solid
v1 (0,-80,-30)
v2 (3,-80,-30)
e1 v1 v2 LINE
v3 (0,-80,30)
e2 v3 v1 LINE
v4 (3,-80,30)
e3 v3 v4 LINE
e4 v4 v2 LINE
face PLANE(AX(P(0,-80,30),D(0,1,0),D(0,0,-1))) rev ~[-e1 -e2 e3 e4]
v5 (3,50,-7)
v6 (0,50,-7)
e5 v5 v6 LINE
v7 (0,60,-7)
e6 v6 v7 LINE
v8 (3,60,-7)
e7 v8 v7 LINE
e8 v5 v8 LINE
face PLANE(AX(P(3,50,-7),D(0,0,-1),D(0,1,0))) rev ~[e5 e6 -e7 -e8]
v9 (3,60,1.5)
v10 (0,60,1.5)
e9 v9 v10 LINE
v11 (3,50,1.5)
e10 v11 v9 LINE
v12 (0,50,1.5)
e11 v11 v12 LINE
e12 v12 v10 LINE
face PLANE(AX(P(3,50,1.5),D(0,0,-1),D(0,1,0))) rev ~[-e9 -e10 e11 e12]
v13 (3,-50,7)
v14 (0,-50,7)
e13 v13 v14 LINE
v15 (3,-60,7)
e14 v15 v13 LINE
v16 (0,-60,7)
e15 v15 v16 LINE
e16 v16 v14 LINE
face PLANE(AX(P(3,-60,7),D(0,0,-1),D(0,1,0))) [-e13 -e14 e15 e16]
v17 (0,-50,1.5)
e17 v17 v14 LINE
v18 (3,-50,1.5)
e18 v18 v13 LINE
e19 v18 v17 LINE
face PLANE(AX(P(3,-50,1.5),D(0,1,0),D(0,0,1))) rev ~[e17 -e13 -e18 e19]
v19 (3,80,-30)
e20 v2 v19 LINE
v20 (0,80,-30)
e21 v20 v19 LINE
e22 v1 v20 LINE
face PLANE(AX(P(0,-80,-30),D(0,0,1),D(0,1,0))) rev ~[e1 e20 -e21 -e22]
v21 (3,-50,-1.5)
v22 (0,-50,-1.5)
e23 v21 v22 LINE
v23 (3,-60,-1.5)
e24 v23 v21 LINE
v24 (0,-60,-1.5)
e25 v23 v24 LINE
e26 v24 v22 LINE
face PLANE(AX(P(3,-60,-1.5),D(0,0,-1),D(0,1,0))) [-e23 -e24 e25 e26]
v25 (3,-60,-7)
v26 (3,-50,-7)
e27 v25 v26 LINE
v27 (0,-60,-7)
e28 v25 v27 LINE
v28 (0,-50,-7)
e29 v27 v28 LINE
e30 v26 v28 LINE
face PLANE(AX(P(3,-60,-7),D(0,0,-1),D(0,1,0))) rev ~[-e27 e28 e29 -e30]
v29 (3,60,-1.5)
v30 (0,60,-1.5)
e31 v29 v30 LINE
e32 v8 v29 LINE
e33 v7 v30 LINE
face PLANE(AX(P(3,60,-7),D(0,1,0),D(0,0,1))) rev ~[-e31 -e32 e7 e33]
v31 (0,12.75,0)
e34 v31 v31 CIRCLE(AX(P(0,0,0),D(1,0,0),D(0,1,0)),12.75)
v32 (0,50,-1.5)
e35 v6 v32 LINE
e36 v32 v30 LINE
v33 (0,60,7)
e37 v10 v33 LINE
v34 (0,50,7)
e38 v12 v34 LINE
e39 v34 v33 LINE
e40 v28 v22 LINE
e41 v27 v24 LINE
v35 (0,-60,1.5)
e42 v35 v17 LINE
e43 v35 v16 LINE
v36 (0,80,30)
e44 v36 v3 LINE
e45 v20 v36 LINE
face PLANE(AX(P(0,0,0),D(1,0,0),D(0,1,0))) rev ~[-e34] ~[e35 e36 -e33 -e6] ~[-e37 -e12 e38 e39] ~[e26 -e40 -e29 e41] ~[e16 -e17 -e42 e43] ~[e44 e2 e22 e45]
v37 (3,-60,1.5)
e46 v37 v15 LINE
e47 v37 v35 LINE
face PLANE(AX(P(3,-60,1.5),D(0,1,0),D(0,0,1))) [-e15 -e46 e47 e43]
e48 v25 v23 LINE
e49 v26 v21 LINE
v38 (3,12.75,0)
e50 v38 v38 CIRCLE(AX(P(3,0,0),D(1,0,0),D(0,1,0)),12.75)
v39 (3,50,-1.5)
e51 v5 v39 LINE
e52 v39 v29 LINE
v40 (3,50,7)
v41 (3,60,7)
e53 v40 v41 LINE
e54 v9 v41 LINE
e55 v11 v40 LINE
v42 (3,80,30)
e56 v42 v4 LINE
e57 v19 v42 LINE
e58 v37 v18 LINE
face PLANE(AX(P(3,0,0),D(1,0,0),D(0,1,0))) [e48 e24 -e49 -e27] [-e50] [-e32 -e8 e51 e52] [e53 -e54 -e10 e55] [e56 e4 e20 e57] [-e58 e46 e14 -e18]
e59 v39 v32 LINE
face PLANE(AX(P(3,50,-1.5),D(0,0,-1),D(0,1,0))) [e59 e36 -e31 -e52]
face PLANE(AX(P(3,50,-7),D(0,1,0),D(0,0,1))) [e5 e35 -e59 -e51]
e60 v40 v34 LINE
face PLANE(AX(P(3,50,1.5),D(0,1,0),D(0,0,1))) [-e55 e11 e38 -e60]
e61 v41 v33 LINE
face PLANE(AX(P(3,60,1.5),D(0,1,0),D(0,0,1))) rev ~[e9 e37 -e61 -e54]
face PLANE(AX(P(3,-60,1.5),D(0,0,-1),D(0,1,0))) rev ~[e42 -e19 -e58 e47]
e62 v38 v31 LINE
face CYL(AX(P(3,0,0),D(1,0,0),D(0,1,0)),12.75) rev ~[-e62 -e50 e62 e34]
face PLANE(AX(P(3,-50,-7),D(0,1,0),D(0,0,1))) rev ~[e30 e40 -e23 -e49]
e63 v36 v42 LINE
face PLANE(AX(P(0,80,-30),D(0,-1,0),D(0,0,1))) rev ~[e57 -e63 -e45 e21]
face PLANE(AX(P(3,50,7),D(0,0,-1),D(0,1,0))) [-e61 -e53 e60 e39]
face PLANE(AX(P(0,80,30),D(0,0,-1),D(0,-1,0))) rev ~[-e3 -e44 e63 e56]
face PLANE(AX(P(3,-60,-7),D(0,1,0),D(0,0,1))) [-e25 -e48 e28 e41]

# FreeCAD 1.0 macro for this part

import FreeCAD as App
import Part
import Sketcher

doc = App.newDocument("Part")
body = doc.addObject("PartDesign::Body", "Body")

sketch1 = body.newObject("Sketcher::SketchObject", "Sketch")
sketch1.AttachmentSupport = (doc.getObject("YZ_Plane"), [""])
sketch1.MapMode = "FlatFace"
sketch1.addGeometry(Part.LineSegment(App.Vector(80, 30, 0), App.Vector(-80, 30, 0)), False)
sketch1.addGeometry(Part.LineSegment(App.Vector(-80, 30, 0), App.Vector(-80, -30, 0)), False)
sketch1.addGeometry(Part.LineSegment(App.Vector(-80, -30, 0), App.Vector(80, -30, 0)), False)
sketch1.addGeometry(Part.LineSegment(App.Vector(80, -30, 0), App.Vector(80, 30, 0)), False)
sketch1.addConstraint(Sketcher.Constraint("Coincident", 0, 2, 1, 1))
sketch1.addConstraint(Sketcher.Constraint("Coincident", 1, 2, 2, 1))
sketch1.addConstraint(Sketcher.Constraint("Coincident", 2, 2, 3, 1))
sketch1.addConstraint(Sketcher.Constraint("Coincident", 3, 2, 0, 1))
sketch1.addConstraint(Sketcher.Constraint("Horizontal", 0))
sketch1.addConstraint(Sketcher.Constraint("Vertical", 1))
sketch1.addConstraint(Sketcher.Constraint("Horizontal", 2))
sketch1.addConstraint(Sketcher.Constraint("Vertical", 3))
sketch1.addConstraint(Sketcher.Constraint("Symmetric", 0, 2, 2, 2, -1, 1))
sketch1.addConstraint(Sketcher.Constraint("DistanceX", 0, 2, 0, 1, 160.0))
sketch1.addConstraint(Sketcher.Constraint("DistanceY", 1, 2, 1, 1, 60.0))
pad1 = body.newObject("PartDesign::Pad", "Pad")
pad1.Profile = sketch1
pad1.Length = 3

sketch2 = body.newObject("Sketcher::SketchObject", "Sketch001")
sketch2.AttachmentSupport = (doc.getObject("YZ_Plane"), [""])
sketch2.MapMode = "FlatFace"
sketch2.AttachmentOffset = App.Placement(App.Vector(0, 0, 3), App.Rotation())
sketch2.addGeometry(Part.LineSegment(App.Vector(-60, -2, 0), App.Vector(-60, -7, 0)), False)
sketch2.addGeometry(Part.LineSegment(App.Vector(-60, -7, 0), App.Vector(-50, -7, 0)), False)
sketch2.addGeometry(Part.LineSegment(App.Vector(-50, -7, 0), App.Vector(-50, -2, 0)), False)
sketch2.addGeometry(Part.LineSegment(App.Vector(-50, -2, 0), App.Vector(-60, -2, 0)), False)
sketch2.addGeometry(Part.LineSegment(App.Vector(-60, 7, 0), App.Vector(-60, 2, 0)), False)
sketch2.addGeometry(Part.LineSegment(App.Vector(-60, 2, 0), App.Vector(-50, 2, 0)), False)
sketch2.addGeometry(Part.LineSegment(App.Vector(-50, 2, 0), App.Vector(-50, 7, 0)), False)
sketch2.addGeometry(Part.LineSegment(App.Vector(-50, 7, 0), App.Vector(-60, 7, 0)), False)
sketch2.addGeometry(Part.LineSegment(App.Vector(50, 7, 0), App.Vector(50, 2, 0)), False)
sketch2.addGeometry(Part.LineSegment(App.Vector(50, 2, 0), App.Vector(60, 2, 0)), False)
sketch2.addGeometry(Part.LineSegment(App.Vector(60, 2, 0), App.Vector(60, 7, 0)), False)
sketch2.addGeometry(Part.LineSegment(App.Vector(60, 7, 0), App.Vector(50, 7, 0)), False)
sketch2.addGeometry(Part.LineSegment(App.Vector(50, -2, 0), App.Vector(50, -7, 0)), False)
sketch2.addGeometry(Part.LineSegment(App.Vector(50, -7, 0), App.Vector(60, -7, 0)), False)
sketch2.addGeometry(Part.LineSegment(App.Vector(60, -7, 0), App.Vector(60, -2, 0)), False)
sketch2.addGeometry(Part.LineSegment(App.Vector(60, -2, 0), App.Vector(50, -2, 0)), False)
sketch2.addConstraint(Sketcher.Constraint("Coincident", 0, 2, 1, 1))
sketch2.addConstraint(Sketcher.Constraint("Coincident", 1, 2, 2, 1))
sketch2.addConstraint(Sketcher.Constraint("Coincident", 2, 2, 3, 1))
sketch2.addConstraint(Sketcher.Constraint("Coincident", 3, 2, 0, 1))
sketch2.addConstraint(Sketcher.Constraint("Coincident", 4, 2, 5, 1))
sketch2.addConstraint(Sketcher.Constraint("Coincident", 5, 2, 6, 1))
sketch2.addConstraint(Sketcher.Constraint("Coincident", 6, 2, 7, 1))
sketch2.addConstraint(Sketcher.Constraint("Coincident", 7, 2, 4, 1))
sketch2.addConstraint(Sketcher.Constraint("Coincident", 8, 2, 9, 1))
sketch2.addConstraint(Sketcher.Constraint("Coincident", 9, 2, 10, 1))
sketch2.addConstraint(Sketcher.Constraint("Coincident", 10, 2, 11, 1))
sketch2.addConstraint(Sketcher.Constraint("Coincident", 11, 2, 8, 1))
sketch2.addConstraint(Sketcher.Constraint("Coincident", 12, 2, 13, 1))
sketch2.addConstraint(Sketcher.Constraint("Coincident", 13, 2, 14, 1))
sketch2.addConstraint(Sketcher.Constraint("Coincident", 14, 2, 15, 1))
sketch2.addConstraint(Sketcher.Constraint("Coincident", 15, 2, 12, 1))
sketch2.addConstraint(Sketcher.Constraint("Vertical", 0))
sketch2.addConstraint(Sketcher.Constraint("Horizontal", 1))
sketch2.addConstraint(Sketcher.Constraint("Vertical", 2))
sketch2.addConstraint(Sketcher.Constraint("Horizontal", 3))
sketch2.addConstraint(Sketcher.Constraint("Vertical", 4))
sketch2.addConstraint(Sketcher.Constraint("Horizontal", 5))
sketch2.addConstraint(Sketcher.Constraint("Vertical", 6))
sketch2.addConstraint(Sketcher.Constraint("Horizontal", 7))
sketch2.addConstraint(Sketcher.Constraint("Vertical", 8))
sketch2.addConstraint(Sketcher.Constraint("Horizontal", 9))
sketch2.addConstraint(Sketcher.Constraint("Vertical", 10))
sketch2.addConstraint(Sketcher.Constraint("Horizontal", 11))
sketch2.addConstraint(Sketcher.Constraint("Vertical", 12))
sketch2.addConstraint(Sketcher.Constraint("Horizontal", 13))
sketch2.addConstraint(Sketcher.Constraint("Vertical", 14))
sketch2.addConstraint(Sketcher.Constraint("Horizontal", 15))
sketch2.addConstraint(Sketcher.Constraint("Symmetric", 2, 2, 8, 2, -1, 1))
sketch2.addConstraint(Sketcher.Constraint("Symmetric", 0, 2, 10, 2, -1, 1))
sketch2.addConstraint(Sketcher.Constraint("Symmetric", 6, 2, 12, 2, -1, 1))
sketch2.addConstraint(Sketcher.Constraint("Symmetric", 4, 2, 14, 2, -1, 1))
sketch2.addConstraint(Sketcher.Constraint("Symmetric", 5, 2, 8, 2, -2))
sketch2.addConstraint(Sketcher.Constraint("Symmetric", 7, 2, 10, 2, -2))
sketch2.addConstraint(Sketcher.Constraint("DistanceX", 1, 1, 1, 2, 10.0))
sketch2.addConstraint(Sketcher.Constraint("DistanceY", 0, 2, 0, 1, 5.5))
sketch2.addConstraint(Sketcher.Constraint("DistanceX", 0, 2, -1, 1, 60.0))
sketch2.addConstraint(Sketcher.Constraint("DistanceY", 0, 2, -1, 1, 7.0))
pocket1 = body.newObject("PartDesign::Pocket", "Pocket")
pocket1.Profile = sketch2
pocket1.Length = 25

sketch3 = body.newObject("Sketcher::SketchObject", "Sketch002")
sketch3.AttachmentSupport = (doc.getObject("YZ_Plane"), [""])
sketch3.MapMode = "FlatFace"
sketch3.AttachmentOffset = App.Placement(App.Vector(0, 0, 3), App.Rotation())
sketch3.addGeometry(Part.Circle(App.Vector(0, 0, 0), App.Vector(0, 0, 1), 13), False)
sketch3.addConstraint(Sketcher.Constraint("Coincident", 0, 3, -1, 1))
sketch3.addConstraint(Sketcher.Constraint("Diameter", 0, 25.5))
pocket2 = body.newObject("PartDesign::Pocket", "Pocket001")
pocket2.Profile = sketch3
pocket2.Length = 25

doc.recompute()
